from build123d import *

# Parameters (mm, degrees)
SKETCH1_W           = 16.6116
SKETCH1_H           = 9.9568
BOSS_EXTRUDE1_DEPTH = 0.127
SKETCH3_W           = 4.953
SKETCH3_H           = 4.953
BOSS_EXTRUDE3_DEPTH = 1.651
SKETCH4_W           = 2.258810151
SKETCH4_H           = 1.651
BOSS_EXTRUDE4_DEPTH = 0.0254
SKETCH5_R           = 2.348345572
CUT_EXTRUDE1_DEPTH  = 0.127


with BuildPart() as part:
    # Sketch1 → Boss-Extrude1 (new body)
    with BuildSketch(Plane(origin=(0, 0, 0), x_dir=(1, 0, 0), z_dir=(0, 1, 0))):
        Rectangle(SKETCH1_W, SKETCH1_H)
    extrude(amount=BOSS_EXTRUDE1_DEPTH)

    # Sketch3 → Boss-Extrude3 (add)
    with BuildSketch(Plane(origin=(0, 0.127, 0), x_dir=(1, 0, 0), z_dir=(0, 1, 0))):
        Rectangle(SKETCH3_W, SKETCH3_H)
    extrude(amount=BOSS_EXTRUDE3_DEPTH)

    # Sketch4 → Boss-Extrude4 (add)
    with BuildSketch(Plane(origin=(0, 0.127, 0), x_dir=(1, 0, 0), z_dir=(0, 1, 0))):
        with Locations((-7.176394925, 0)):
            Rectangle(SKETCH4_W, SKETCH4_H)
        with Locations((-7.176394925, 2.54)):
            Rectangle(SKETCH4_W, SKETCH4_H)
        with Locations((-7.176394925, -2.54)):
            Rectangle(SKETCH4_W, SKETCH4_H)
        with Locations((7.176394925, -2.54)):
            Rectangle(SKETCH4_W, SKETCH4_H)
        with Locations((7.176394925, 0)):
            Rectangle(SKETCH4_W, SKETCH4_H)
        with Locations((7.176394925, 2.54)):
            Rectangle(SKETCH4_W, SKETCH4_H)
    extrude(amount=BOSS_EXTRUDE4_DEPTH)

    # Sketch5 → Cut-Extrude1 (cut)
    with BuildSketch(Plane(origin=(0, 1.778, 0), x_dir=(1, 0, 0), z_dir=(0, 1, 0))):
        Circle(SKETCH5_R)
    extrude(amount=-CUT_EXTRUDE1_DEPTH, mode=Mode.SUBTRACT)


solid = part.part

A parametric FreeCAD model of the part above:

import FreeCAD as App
import Part
import Sketcher
Q = App.Units.Quantity

doc = App.newDocument("Part")
params = doc.addObject("Spreadsheet::Sheet", "Params")
for row, (alias, value) in enumerate([
    ("sketch1_width", "0.654 in"),
    ("sketch1_height", "0.392 in"),
    ("pad1_length", "0.005 in"),
    ("sketch2_width", "0.195 in"),
    ("pad2_length", "0.065 in"),
    ("sketch3_height", "0.065 in"),
    ("pad3_length", "0.001 in"),
    ("pocket1_length", "0.005 in"),
], start=1):
    params.set(f"A{row}", alias)
    params.set(f"B{row}", "=" + value)
    params.setAlias(f"B{row}", alias)

body = doc.addObject("PartDesign::Body", "Body")

# Sketch on XZ plane
sketch1 = doc.addObject("Sketcher::SketchObject", "Sketch")
body.addObject(sketch1)
sketch1.AttachmentSupport = (doc.XZ_Plane, [""])
sketch1.MapMode = "FlatFace"
sketch1.addGeometry(Part.LineSegment(App.Vector(-8.3058, -4.9784, 0), App.Vector(-8.3058, 4.9784, 0)), False)
sketch1.addGeometry(Part.LineSegment(App.Vector(-8.3058, 4.9784, 0), App.Vector(8.3058, 4.9784, 0)), False)
sketch1.addGeometry(Part.LineSegment(App.Vector(8.3058, 4.9784, 0), App.Vector(8.3058, -4.9784, 0)), False)
sketch1.addGeometry(Part.LineSegment(App.Vector(8.3058, -4.9784, 0), App.Vector(-8.3058, -4.9784, 0)), False)
sketch1.addConstraint(Sketcher.Constraint("Coincident", 0, 2, 1, 1))
sketch1.addConstraint(Sketcher.Constraint("Coincident", 1, 2, 2, 1))
sketch1.addConstraint(Sketcher.Constraint("Coincident", 2, 2, 3, 1))
sketch1.addConstraint(Sketcher.Constraint("Coincident", 3, 2, 0, 1))
sketch1.addConstraint(Sketcher.Constraint("Vertical", 0))
sketch1.addConstraint(Sketcher.Constraint("Horizontal", 1))
sketch1.addConstraint(Sketcher.Constraint("Vertical", 2))
sketch1.addConstraint(Sketcher.Constraint("Horizontal", 3))
sketch1.addConstraint(Sketcher.Constraint("Symmetric", 0, 2, 2, 2, -1, 1))
sketch1.addConstraint(Sketcher.Constraint("DistanceX", 1, 1, 1, 2, Q("0.654 in")))
sketch1.addConstraint(Sketcher.Constraint("DistanceY", 0, 1, 0, 2, Q("0.392 in")))
sketch1.setExpression("Constraints[9]", "Params.sketch1_width")
sketch1.setExpression("Constraints[10]", "Params.sketch1_height")
pad1 = doc.addObject("PartDesign::Pad", "Pad")
body.addObject(pad1)
pad1.Profile = sketch1
pad1.setExpression("Length", "Params.pad1_length")
pad1.Reversed = True

# Sketch on XZ plane
sketch2 = doc.addObject("Sketcher::SketchObject", "Sketch001")
body.addObject(sketch2)
sketch2.AttachmentSupport = (doc.XZ_Plane, [""])
sketch2.MapMode = "FlatFace"
sketch2.AttachmentOffset = App.Placement(App.Vector(0, 0, -0.005 * 25.4), App.Rotation())
sketch2.addGeometry(Part.LineSegment(App.Vector(-2.4765, -2.4765, 0), App.Vector(-2.4765, 2.4765, 0)), False)
sketch2.addGeometry(Part.LineSegment(App.Vector(-2.4765, 2.4765, 0), App.Vector(2.4765, 2.4765, 0)), False)
sketch2.addGeometry(Part.LineSegment(App.Vector(2.4765, 2.4765, 0), App.Vector(2.4765, -2.4765, 0)), False)
sketch2.addGeometry(Part.LineSegment(App.Vector(2.4765, -2.4765, 0), App.Vector(-2.4765, -2.4765, 0)), False)
sketch2.addConstraint(Sketcher.Constraint("Coincident", 0, 2, 1, 1))
sketch2.addConstraint(Sketcher.Constraint("Coincident", 1, 2, 2, 1))
sketch2.addConstraint(Sketcher.Constraint("Coincident", 2, 2, 3, 1))
sketch2.addConstraint(Sketcher.Constraint("Coincident", 3, 2, 0, 1))
sketch2.addConstraint(Sketcher.Constraint("Vertical", 0))
sketch2.addConstraint(Sketcher.Constraint("Horizontal", 1))
sketch2.addConstraint(Sketcher.Constraint("Vertical", 2))
sketch2.addConstraint(Sketcher.Constraint("Horizontal", 3))
sketch2.addConstraint(Sketcher.Constraint("Symmetric", 0, 2, 2, 2, -1, 1))
sketch2.addConstraint(Sketcher.Constraint("Equal", 3, 0))
sketch2.addConstraint(Sketcher.Constraint("DistanceX", 1, 1, 1, 2, Q("0.195 in")))
sketch2.setExpression("Constraints[10]", "Params.sketch2_width")
pad2 = doc.addObject("PartDesign::Pad", "Pad001")
body.addObject(pad2)
pad2.Profile = sketch2
pad2.setExpression("Length", "Params.pad2_length")
pad2.Reversed = True

# Sketch on XZ plane
sketch3 = doc.addObject("Sketcher::SketchObject", "Sketch002")
body.addObject(sketch3)
sketch3.AttachmentSupport = (doc.XZ_Plane, [""])
sketch3.MapMode = "FlatFace"
sketch3.AttachmentOffset = App.Placement(App.Vector(0, 0, -0.005 * 25.4), App.Rotation())
sketch3.addGeometry(Part.LineSegment(App.Vector(-8.3058, -0.8255, 0), App.Vector(-8.3058, 0.8255, 0)), False)
sketch3.addGeometry(Part.LineSegment(App.Vector(-8.3058, 0.8255, 0), App.Vector(-6.04699, 0.8255, 0)), False)
sketch3.addGeometry(Part.LineSegment(App.Vector(-6.04699, 0.8255, 0), App.Vector(-6.04699, -0.8255, 0)), False)
sketch3.addGeometry(Part.LineSegment(App.Vector(-6.04699, -0.8255, 0), App.Vector(-8.3058, -0.8255, 0)), False)
sketch3.addGeometry(Part.LineSegment(App.Vector(-8.3058, -3.3655, 0), App.Vector(-8.3058, -1.7145, 0)), False)
sketch3.addGeometry(Part.LineSegment(App.Vector(-8.3058, -1.7145, 0), App.Vector(-6.04699, -1.7145, 0)), False)
sketch3.addGeometry(Part.LineSegment(App.Vector(-6.04699, -1.7145, 0), App.Vector(-6.04699, -3.3655, 0)), False)
sketch3.addGeometry(Part.LineSegment(App.Vector(-6.04699, -3.3655, 0), App.Vector(-8.3058, -3.3655, 0)), False)
sketch3.addGeometry(Part.LineSegment(App.Vector(-8.3058, 1.7145, 0), App.Vector(-8.3058, 3.3655, 0)), False)
sketch3.addGeometry(Part.LineSegment(App.Vector(-8.3058, 3.3655, 0), App.Vector(-6.04699, 3.3655, 0)), False)
sketch3.addGeometry(Part.LineSegment(App.Vector(-6.04699, 3.3655, 0), App.Vector(-6.04699, 1.7145, 0)), False)
sketch3.addGeometry(Part.LineSegment(App.Vector(-6.04699, 1.7145, 0), App.Vector(-8.3058, 1.7145, 0)), False)
sketch3.addGeometry(Part.LineSegment(App.Vector(6.04699, 1.7145, 0), App.Vector(6.04699, 3.3655, 0)), False)
sketch3.addGeometry(Part.LineSegment(App.Vector(6.04699, 3.3655, 0), App.Vector(8.3058, 3.3655, 0)), False)
sketch3.addGeometry(Part.LineSegment(App.Vector(8.3058, 3.3655, 0), App.Vector(8.3058, 1.7145, 0)), False)
sketch3.addGeometry(Part.LineSegment(App.Vector(8.3058, 1.7145, 0), App.Vector(6.04699, 1.7145, 0)), False)
sketch3.addGeometry(Part.LineSegment(App.Vector(6.04699, -0.8255, 0), App.Vector(6.04699, 0.8255, 0)), False)
sketch3.addGeometry(Part.LineSegment(App.Vector(6.04699, 0.8255, 0), App.Vector(8.3058, 0.8255, 0)), False)
sketch3.addGeometry(Part.LineSegment(App.Vector(8.3058, 0.8255, 0), App.Vector(8.3058, -0.8255, 0)), False)
sketch3.addGeometry(Part.LineSegment(App.Vector(8.3058, -0.8255, 0), App.Vector(6.04699, -0.8255, 0)), False)
sketch3.addGeometry(Part.LineSegment(App.Vector(6.04699, -3.3655, 0), App.Vector(6.04699, -1.7145, 0)), False)
sketch3.addGeometry(Part.LineSegment(App.Vector(6.04699, -1.7145, 0), App.Vector(8.3058, -1.7145, 0)), False)
sketch3.addGeometry(Part.LineSegment(App.Vector(8.3058, -1.7145, 0), App.Vector(8.3058, -3.3655, 0)), False)
sketch3.addGeometry(Part.LineSegment(App.Vector(8.3058, -3.3655, 0), App.Vector(6.04699, -3.3655, 0)), False)
sketch3.addConstraint(Sketcher.Constraint("Coincident", 0, 2, 1, 1))
sketch3.addConstraint(Sketcher.Constraint("Coincident", 1, 2, 2, 1))
sketch3.addConstraint(Sketcher.Constraint("Coincident", 2, 2, 3, 1))
sketch3.addConstraint(Sketcher.Constraint("Coincident", 3, 2, 0, 1))
sketch3.addConstraint(Sketcher.Constraint("Coincident", 4, 2, 5, 1))
sketch3.addConstraint(Sketcher.Constraint("Coincident", 5, 2, 6, 1))
sketch3.addConstraint(Sketcher.Constraint("Coincident", 6, 2, 7, 1))
sketch3.addConstraint(Sketcher.Constraint("Coincident", 7, 2, 4, 1))
sketch3.addConstraint(Sketcher.Constraint("Coincident", 8, 2, 9, 1))
sketch3.addConstraint(Sketcher.Constraint("Coincident", 9, 2, 10, 1))
sketch3.addConstraint(Sketcher.Constraint("Coincident", 10, 2, 11, 1))
sketch3.addConstraint(Sketcher.Constraint("Coincident", 11, 2, 8, 1))
sketch3.addConstraint(Sketcher.Constraint("Coincident", 12, 2, 13, 1))
sketch3.addConstraint(Sketcher.Constraint("Coincident", 13, 2, 14, 1))
sketch3.addConstraint(Sketcher.Constraint("Coincident", 14, 2, 15, 1))
sketch3.addConstraint(Sketcher.Constraint("Coincident", 15, 2, 12, 1))
sketch3.addConstraint(Sketcher.Constraint("Coincident", 16, 2, 17, 1))
sketch3.addConstraint(Sketcher.Constraint("Coincident", 17, 2, 18, 1))
sketch3.addConstraint(Sketcher.Constraint("Coincident", 18, 2, 19, 1))
sketch3.addConstraint(Sketcher.Constraint("Coincident", 19, 2, 16, 1))
sketch3.addConstraint(Sketcher.Constraint("Coincident", 20, 2, 21, 1))
sketch3.addConstraint(Sketcher.Constraint("Coincident", 21, 2, 22, 1))
sketch3.addConstraint(Sketcher.Constraint("Coincident", 22, 2, 23, 1))
sketch3.addConstraint(Sketcher.Constraint("Coincident", 23, 2, 20, 1))
sketch3.addConstraint(Sketcher.Constraint("Vertical", 0))
sketch3.addConstraint(Sketcher.Constraint("Horizontal", 1))
sketch3.addConstraint(Sketcher.Constraint("Vertical", 2))
sketch3.addConstraint(Sketcher.Constraint("Horizontal", 3))
sketch3.addConstraint(Sketcher.Constraint("Vertical", 4))
sketch3.addConstraint(Sketcher.Constraint("Horizontal", 5))
sketch3.addConstraint(Sketcher.Constraint("Vertical", 6))
sketch3.addConstraint(Sketcher.Constraint("Horizontal", 7))
sketch3.addConstraint(Sketcher.Constraint("Vertical", 8))
sketch3.addConstraint(Sketcher.Constraint("Horizontal", 9))
sketch3.addConstraint(Sketcher.Constraint("Vertical", 10))
sketch3.addConstraint(Sketcher.Constraint("Horizontal", 11))
sketch3.addConstraint(Sketcher.Constraint("Vertical", 12))
sketch3.addConstraint(Sketcher.Constraint("Horizontal", 13))
sketch3.addConstraint(Sketcher.Constraint("Vertical", 14))
sketch3.addConstraint(Sketcher.Constraint("Horizontal", 15))
sketch3.addConstraint(Sketcher.Constraint("Vertical", 16))
sketch3.addConstraint(Sketcher.Constraint("Horizontal", 17))
sketch3.addConstraint(Sketcher.Constraint("Vertical", 18))
sketch3.addConstraint(Sketcher.Constraint("Horizontal", 19))
sketch3.addConstraint(Sketcher.Constraint("Vertical", 20))
sketch3.addConstraint(Sketcher.Constraint("Horizontal", 21))
sketch3.addConstraint(Sketcher.Constraint("Vertical", 22))
sketch3.addConstraint(Sketcher.Constraint("Horizontal", 23))
sketch3.addConstraint(Sketcher.Constraint("Symmetric", 6, 2, 12, 2, -1, 1))
sketch3.addConstraint(Sketcher.Constraint("Symmetric", 4, 2, 14, 2, -1, 1))
sketch3.addConstraint(Sketcher.Constraint("Symmetric", 2, 2, 16, 2, -1, 1))
sketch3.addConstraint(Sketcher.Constraint("Symmetric", 0, 2, 18, 2, -1, 1))
sketch3.addConstraint(Sketcher.Constraint("Symmetric", 10, 2, 20, 2, -1, 1))
sketch3.addConstraint(Sketcher.Constraint("Symmetric", 8, 2, 22, 2, -1, 1))
sketch3.addConstraint(Sketcher.Constraint("Symmetric", 9, 2, 12, 2, -2))
sketch3.addConstraint(Sketcher.Constraint("Symmetric", 11, 2, 14, 2, -2))
sketch3.addConstraint(Sketcher.Constraint("Horizontal", 1, 2, 16, 2))
sketch3.addConstraint(Sketcher.Constraint("Vertical", 3, 2, 4, 2))
sketch3.addConstraint(Sketcher.Constraint("Vertical", 2, 2, 5, 2))
sketch3.addConstraint(Sketcher.Constraint("Equal", 2, 4))
sketch3.addConstraint(Sketcher.Constraint("DistanceY", 4, 2, 0, 2, Q("0.1 in")))
sketch3.addConstraint(Sketcher.Constraint("DistanceY", 0, 1, 0, 2, Q("0.065 in")))
sketch3.addConstraint(Sketcher.Constraint("DistanceX", 0, 2, -1, 1, Q("0.327 in")))
sketch3.addConstraint(Sketcher.Constraint("DistanceX", 1, 1, 1, 2, Q("2.25881 mm")))
sketch3.setExpression("Constraints[61]", "Params.sketch3_height")
pad3 = doc.addObject("PartDesign::Pad", "Pad002")
body.addObject(pad3)
pad3.Profile = sketch3
pad3.setExpression("Length", "Params.pad3_length")
pad3.Reversed = True

# Sketch on XZ plane
sketch4 = doc.addObject("Sketcher::SketchObject", "Sketch003")
body.addObject(sketch4)
sketch4.AttachmentSupport = (doc.XZ_Plane, [""])
sketch4.MapMode = "FlatFace"
sketch4.AttachmentOffset = App.Placement(App.Vector(0, 0, -0.07 * 25.4), App.Rotation())
sketch4.addGeometry(Part.Circle(App.Vector(0, 0, 0), App.Vector(0, 0, 1), 2.348346), False)
sketch4.addConstraint(Sketcher.Constraint("Coincident", 0, 3, -1, 1))
sketch4.addConstraint(Sketcher.Constraint("Diameter", 0, Q("4.696691 mm")))
pocket1 = doc.addObject("PartDesign::Pocket", "Pocket")
body.addObject(pocket1)
pocket1.Profile = sketch4
pocket1.setExpression("Length", "Params.pocket1_length")
pocket1.Reversed = True

doc.recompute()
